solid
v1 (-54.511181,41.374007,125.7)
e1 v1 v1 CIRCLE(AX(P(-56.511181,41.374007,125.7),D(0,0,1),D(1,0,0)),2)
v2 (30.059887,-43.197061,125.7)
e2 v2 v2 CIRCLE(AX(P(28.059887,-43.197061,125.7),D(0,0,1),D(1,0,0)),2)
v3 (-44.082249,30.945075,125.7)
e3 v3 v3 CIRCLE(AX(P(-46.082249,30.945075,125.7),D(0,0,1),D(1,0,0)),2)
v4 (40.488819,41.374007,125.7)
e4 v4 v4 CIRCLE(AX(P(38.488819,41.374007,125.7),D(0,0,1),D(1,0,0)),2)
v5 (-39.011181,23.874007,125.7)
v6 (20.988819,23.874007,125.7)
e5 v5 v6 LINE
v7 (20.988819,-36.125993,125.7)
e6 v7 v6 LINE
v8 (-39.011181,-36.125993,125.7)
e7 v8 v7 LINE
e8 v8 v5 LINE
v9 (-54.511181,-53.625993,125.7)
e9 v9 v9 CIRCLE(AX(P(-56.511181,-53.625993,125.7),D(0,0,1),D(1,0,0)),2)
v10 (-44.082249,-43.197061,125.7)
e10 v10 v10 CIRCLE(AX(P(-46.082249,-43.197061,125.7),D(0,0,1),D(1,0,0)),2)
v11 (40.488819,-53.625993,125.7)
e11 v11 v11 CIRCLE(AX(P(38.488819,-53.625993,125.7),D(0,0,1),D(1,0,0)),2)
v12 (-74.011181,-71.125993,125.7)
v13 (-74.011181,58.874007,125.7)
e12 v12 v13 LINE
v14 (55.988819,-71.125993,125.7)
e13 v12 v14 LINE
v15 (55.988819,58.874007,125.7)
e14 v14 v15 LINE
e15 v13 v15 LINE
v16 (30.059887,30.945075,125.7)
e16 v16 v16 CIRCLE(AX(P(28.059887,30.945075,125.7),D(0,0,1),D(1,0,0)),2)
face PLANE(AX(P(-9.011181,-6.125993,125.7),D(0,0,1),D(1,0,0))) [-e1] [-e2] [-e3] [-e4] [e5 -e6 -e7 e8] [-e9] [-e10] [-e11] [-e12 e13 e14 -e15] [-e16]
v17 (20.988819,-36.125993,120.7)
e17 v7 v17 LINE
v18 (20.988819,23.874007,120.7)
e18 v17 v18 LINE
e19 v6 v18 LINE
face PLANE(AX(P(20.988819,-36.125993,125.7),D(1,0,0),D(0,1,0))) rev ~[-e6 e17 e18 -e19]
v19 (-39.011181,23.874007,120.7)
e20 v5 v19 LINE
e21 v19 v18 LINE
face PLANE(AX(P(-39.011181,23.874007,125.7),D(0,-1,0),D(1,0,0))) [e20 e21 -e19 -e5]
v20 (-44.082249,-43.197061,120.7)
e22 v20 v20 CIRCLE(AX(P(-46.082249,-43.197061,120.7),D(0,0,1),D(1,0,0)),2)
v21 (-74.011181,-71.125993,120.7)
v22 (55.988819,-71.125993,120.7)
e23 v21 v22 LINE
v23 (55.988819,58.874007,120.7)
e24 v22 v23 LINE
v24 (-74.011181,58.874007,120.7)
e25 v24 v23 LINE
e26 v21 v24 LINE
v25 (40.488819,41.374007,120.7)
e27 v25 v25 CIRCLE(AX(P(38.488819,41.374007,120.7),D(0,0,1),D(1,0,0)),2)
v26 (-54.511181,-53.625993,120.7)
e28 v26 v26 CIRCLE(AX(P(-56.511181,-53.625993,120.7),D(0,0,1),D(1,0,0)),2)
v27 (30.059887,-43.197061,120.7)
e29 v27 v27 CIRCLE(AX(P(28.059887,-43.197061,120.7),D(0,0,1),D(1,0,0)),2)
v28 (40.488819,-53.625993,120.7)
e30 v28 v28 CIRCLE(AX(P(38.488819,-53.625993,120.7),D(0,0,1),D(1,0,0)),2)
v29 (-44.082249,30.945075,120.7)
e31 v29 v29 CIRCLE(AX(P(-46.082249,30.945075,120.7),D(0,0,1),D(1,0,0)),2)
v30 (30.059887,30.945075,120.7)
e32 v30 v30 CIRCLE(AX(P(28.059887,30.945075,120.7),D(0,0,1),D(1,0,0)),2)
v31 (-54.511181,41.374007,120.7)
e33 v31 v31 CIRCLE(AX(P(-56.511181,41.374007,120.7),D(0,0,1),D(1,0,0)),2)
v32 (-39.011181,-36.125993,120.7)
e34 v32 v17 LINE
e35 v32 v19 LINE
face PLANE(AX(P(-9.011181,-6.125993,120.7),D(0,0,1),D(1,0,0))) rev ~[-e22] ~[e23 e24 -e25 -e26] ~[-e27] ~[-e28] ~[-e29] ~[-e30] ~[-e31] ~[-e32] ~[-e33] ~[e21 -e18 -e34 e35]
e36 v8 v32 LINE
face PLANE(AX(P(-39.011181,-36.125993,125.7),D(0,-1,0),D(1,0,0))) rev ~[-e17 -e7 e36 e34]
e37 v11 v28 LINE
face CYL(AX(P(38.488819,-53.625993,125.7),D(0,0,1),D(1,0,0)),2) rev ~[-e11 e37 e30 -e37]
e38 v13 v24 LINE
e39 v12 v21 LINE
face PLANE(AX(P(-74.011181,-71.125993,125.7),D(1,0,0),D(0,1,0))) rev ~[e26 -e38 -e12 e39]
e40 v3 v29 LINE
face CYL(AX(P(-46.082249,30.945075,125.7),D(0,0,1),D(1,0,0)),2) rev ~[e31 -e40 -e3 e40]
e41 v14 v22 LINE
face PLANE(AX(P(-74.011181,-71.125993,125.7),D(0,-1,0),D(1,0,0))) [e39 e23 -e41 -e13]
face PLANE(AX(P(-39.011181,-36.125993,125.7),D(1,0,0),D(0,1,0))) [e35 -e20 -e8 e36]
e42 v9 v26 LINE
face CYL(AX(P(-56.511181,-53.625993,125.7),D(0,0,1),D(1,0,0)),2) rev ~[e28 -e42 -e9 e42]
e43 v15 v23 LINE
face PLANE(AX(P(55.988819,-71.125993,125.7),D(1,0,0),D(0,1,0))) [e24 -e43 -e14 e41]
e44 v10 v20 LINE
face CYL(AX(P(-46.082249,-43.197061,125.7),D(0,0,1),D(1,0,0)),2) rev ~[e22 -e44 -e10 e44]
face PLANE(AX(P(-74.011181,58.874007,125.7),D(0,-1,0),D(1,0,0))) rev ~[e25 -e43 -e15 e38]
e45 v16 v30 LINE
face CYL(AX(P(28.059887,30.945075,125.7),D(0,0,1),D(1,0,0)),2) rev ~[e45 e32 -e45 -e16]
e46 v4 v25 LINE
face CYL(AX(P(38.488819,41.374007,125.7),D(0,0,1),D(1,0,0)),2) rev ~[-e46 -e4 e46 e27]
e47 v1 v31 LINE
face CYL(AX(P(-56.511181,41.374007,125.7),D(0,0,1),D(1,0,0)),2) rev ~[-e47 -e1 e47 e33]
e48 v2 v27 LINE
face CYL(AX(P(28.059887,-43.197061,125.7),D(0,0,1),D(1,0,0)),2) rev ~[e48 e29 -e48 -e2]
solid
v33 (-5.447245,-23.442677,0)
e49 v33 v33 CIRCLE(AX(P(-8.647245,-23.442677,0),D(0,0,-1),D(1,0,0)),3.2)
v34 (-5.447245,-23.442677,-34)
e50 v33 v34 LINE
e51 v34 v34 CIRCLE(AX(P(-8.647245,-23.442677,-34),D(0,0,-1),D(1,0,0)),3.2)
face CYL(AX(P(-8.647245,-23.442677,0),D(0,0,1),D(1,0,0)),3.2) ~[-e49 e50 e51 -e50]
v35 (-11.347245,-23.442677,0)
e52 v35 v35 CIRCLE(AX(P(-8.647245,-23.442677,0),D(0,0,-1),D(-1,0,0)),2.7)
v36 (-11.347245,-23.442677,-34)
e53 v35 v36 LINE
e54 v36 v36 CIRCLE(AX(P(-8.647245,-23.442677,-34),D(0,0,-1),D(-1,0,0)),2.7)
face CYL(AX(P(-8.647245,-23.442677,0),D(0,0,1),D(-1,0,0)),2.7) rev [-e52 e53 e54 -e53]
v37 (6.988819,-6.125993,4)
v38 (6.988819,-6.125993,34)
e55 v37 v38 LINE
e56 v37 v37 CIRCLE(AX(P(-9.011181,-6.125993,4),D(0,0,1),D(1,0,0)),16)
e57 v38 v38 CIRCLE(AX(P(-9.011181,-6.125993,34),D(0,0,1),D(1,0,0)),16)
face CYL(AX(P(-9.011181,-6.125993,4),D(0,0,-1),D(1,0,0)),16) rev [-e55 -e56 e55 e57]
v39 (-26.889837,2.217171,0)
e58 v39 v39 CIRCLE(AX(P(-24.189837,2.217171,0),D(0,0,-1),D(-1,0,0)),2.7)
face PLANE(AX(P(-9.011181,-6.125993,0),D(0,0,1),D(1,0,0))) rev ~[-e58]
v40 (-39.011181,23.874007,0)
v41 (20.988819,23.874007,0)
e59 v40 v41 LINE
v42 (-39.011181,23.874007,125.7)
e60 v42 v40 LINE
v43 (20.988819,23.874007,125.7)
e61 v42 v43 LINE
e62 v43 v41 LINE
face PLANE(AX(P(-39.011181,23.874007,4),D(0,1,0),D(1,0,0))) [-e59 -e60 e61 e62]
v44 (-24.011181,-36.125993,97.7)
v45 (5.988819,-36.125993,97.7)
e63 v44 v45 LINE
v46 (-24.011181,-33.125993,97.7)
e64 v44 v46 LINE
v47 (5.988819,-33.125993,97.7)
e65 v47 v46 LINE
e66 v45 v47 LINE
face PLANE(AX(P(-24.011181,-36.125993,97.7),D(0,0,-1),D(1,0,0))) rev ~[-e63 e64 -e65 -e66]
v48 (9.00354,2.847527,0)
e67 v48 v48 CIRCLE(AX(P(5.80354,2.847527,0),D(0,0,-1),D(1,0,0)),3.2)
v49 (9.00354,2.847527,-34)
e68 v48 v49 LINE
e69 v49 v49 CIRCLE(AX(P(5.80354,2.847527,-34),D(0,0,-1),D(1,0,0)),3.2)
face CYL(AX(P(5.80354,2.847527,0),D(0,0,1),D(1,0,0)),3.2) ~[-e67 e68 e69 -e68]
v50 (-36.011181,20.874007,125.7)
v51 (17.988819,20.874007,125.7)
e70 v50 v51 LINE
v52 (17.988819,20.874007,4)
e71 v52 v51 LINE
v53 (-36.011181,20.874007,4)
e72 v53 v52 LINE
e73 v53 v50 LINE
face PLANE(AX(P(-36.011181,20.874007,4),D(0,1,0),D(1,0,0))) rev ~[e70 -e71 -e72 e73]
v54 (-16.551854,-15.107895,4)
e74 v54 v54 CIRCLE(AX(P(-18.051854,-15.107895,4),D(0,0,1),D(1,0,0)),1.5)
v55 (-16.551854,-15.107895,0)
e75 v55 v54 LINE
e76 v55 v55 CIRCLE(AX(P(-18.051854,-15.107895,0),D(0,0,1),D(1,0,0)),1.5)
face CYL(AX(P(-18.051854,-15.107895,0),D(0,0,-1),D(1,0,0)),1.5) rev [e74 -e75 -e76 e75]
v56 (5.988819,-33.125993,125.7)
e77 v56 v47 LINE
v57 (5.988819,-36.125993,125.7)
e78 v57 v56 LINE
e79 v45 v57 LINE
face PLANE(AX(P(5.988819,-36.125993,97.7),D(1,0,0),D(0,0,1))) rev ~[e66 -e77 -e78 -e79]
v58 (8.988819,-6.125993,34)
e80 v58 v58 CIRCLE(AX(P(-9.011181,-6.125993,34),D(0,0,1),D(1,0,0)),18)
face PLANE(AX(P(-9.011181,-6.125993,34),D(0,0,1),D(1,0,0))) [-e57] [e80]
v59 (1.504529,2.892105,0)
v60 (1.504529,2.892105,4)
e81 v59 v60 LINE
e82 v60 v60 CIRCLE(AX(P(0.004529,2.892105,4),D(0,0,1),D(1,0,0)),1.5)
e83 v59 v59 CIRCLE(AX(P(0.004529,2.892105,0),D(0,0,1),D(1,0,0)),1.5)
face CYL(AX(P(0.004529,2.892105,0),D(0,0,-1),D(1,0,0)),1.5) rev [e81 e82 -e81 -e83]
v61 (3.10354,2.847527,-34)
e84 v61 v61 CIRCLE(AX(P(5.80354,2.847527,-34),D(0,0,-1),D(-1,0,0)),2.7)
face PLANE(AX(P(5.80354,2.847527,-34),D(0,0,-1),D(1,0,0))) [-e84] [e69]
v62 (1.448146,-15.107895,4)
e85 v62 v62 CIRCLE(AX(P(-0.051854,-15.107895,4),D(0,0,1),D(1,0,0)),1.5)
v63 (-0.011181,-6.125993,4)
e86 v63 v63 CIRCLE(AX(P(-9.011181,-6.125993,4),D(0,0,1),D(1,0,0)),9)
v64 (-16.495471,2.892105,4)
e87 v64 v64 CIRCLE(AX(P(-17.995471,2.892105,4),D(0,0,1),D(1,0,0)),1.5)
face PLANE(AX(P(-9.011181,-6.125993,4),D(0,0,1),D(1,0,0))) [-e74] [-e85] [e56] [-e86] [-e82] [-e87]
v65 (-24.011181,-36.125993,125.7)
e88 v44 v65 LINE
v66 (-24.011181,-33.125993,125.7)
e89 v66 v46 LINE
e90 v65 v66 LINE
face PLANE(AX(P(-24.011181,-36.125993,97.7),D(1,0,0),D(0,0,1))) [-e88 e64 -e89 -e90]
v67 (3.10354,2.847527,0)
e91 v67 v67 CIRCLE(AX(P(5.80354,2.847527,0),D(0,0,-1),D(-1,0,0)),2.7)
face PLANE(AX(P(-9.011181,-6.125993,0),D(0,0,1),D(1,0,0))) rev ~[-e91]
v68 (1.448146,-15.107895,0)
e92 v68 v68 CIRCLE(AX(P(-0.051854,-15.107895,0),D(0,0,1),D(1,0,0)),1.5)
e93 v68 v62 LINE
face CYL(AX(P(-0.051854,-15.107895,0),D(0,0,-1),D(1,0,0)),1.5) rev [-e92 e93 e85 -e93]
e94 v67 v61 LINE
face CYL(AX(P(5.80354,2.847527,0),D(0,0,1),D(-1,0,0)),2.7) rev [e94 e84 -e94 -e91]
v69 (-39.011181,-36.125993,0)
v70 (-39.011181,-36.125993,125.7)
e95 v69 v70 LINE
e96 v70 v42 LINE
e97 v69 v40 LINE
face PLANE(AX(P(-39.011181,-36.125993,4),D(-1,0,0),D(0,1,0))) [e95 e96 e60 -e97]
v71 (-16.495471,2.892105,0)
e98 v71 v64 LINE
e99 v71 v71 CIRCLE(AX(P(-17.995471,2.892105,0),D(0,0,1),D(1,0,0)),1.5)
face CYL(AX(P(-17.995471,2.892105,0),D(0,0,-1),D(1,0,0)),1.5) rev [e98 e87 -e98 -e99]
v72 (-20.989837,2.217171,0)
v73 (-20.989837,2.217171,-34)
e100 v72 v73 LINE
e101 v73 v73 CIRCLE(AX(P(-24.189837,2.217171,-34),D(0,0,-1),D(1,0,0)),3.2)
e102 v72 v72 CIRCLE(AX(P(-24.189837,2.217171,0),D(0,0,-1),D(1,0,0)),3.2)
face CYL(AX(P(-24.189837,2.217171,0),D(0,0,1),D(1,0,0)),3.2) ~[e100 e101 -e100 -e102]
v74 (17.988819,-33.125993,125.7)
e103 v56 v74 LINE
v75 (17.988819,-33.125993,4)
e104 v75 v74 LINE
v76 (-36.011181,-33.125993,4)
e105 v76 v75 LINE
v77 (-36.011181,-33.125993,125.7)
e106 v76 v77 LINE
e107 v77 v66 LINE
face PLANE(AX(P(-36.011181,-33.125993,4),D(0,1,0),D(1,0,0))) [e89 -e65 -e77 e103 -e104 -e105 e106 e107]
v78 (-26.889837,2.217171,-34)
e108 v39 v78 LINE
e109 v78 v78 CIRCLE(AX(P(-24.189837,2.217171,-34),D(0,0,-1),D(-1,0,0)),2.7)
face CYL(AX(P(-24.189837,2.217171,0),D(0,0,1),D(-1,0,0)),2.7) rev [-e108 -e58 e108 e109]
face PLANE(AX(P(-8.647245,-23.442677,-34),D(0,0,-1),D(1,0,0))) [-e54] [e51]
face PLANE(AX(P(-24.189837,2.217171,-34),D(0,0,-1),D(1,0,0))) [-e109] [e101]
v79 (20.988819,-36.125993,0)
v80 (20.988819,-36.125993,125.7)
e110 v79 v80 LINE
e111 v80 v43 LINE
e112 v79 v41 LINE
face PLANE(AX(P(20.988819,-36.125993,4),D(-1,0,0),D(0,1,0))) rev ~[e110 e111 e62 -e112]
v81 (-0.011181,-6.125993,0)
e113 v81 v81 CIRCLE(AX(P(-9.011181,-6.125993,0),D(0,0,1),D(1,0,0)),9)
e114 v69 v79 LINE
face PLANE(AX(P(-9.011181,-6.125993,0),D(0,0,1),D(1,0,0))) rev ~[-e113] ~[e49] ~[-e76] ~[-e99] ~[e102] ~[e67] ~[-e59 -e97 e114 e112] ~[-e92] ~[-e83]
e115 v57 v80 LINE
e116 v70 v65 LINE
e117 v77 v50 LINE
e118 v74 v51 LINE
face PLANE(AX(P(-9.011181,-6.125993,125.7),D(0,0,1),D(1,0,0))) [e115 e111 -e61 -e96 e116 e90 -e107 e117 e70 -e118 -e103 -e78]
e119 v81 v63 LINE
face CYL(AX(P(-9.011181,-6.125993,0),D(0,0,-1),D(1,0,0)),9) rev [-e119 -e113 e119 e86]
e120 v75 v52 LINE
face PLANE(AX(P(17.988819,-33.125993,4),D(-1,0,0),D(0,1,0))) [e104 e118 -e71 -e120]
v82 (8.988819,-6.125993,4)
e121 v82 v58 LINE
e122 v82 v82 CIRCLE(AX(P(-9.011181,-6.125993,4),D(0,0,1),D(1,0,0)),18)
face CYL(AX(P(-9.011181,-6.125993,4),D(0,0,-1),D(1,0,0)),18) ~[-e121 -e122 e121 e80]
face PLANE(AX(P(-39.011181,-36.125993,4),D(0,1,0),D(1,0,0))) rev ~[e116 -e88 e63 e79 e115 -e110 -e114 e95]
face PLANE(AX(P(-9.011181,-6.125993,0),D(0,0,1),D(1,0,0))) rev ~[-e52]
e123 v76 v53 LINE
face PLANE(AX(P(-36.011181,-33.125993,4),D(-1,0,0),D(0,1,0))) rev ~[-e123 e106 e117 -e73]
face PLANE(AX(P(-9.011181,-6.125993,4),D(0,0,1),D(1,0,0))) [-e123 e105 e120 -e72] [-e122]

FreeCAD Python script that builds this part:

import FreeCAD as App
import Part
import Sketcher

V = App.Vector


def add_polygon(sketch, points):
    """Adds a closed chain of lines whose ends are joined by coincident constraints."""
    first, n = sketch.GeometryCount, len(points)
    for a, b in zip(points, points[1:] + points[:1]):
        sketch.addGeometry(Part.LineSegment(App.Vector(*a, 0), App.Vector(*b, 0)), False)
    for i in range(n):
        sketch.addConstraint(Sketcher.Constraint("Coincident", first + i, 2, first + (i + 1) % n, 1))

doc = App.newDocument("Part")
body = doc.addObject("PartDesign::Body", "Body")

sketch1 = doc.addObject("Sketcher::SketchObject", "Sketch")
body.addObject(sketch1)
sketch1.AttachmentSupport = (doc.XY_Plane, [""])
sketch1.MapMode = "FlatFace"
add_polygon(sketch1, [(-39, 23.9), (-39, -36.1), (21, -36.1), (21, 23.9)])
sketch1.addGeometry(Part.Circle(V(-18.1, -15.1, 0), V(0, 0, 1), 1.5), False)
sketch1.addGeometry(Part.Circle(V(-0.1, -15.1, 0), V(0, 0, 1), 1.5), False)
sketch1.addGeometry(Part.Circle(V(-9, -6.1, 0), V(0, 0, 1), 9), False)
sketch1.addGeometry(Part.Circle(V(-18, 2.9, 0), V(0, 0, 1), 1.5), False)
sketch1.addGeometry(Part.Circle(V(0, 2.9, 0), V(0, 0, 1), 1.5), False)
sketch1.addConstraint([
    Sketcher.Constraint("Vertical", 0),
    Sketcher.Constraint("Horizontal", 1),
    Sketcher.Constraint("Vertical", 2),
    Sketcher.Constraint("Horizontal", 3),
    Sketcher.Constraint("Equal", 4, 5),
    Sketcher.Constraint("Equal", 5, 7),
    Sketcher.Constraint("Equal", 7, 8),
    Sketcher.Constraint("Horizontal", 4, 3, 5, 3),
    Sketcher.Constraint("Horizontal", 7, 3, 8, 3),
    Sketcher.Constraint("Equal", 3, 0),
    Sketcher.Constraint("Diameter", 4, 3.0),
    Sketcher.Constraint("Diameter", 6, 18.0),
    Sketcher.Constraint("DistanceX", 1, 1, 1, 2, 60.0),
    Sketcher.Constraint("DistanceX", 4, 3, 5, 3, 18.0),
    Sketcher.Constraint("DistanceY", 4, 3, 7, 3, 18.0),
    Sketcher.Constraint("DistanceX", 7, 3, 8, 3, 18.0),
    Sketcher.Constraint("DistanceX", 0, 2, 6, 3, 30.0),
    Sketcher.Constraint("DistanceY", 0, 2, 6, 3, 30.0),
    Sketcher.Constraint("DistanceY", 5, 3, 6, 3, 8.981902),
    Sketcher.Constraint("DistanceX", 6, 3, -1, 1, 9.011181),
    Sketcher.Constraint("DistanceX", 7, 3, -1, 1, 17.995471),
    Sketcher.Constraint("DistanceX", 4, 3, -1, 1, 18.051854),
    Sketcher.Constraint("DistanceY", 4, 3, -1, 1, 15.107895),
])
pad1 = doc.addObject("PartDesign::Pad", "Pad")
body.addObject(pad1)
pad1.Profile = sketch1
pad1.Length = 4

sketch2 = doc.addObject("Sketcher::SketchObject", "Sketch001")
body.addObject(sketch2)
sketch2.AttachmentSupport = (doc.XY_Plane, [""])
sketch2.MapMode = "FlatFace"
sketch2.AttachmentOffset = App.Placement(V(0, 0, 4), App.Rotation())
sketch2.addGeometry([
    Part.Circle(V(-9, -6, 0), V(0, 0, 1), 18),
    Part.Circle(V(-9, -6, 0), V(0, 0, 1), 16),
], False)
sketch2.addConstraint([
    Sketcher.Constraint("Coincident", 1, 3, 0, 3),
    Sketcher.Constraint("Diameter", 0, 36.0),
    Sketcher.Constraint("Diameter", 1, 32.0),
    Sketcher.Constraint("DistanceX", 0, 3, -1, 1, 9.011181),
    Sketcher.Constraint("DistanceY", 0, 3, -1, 1, 6.125993),
])
pad2 = doc.addObject("PartDesign::Pad", "Pad001")
body.addObject(pad2)
pad2.Profile = sketch2
pad2.Length = 30

sketch3 = doc.addObject("Sketcher::SketchObject", "Sketch002")
body.addObject(sketch3)
sketch3.AttachmentSupport = (doc.XY_Plane, [""])
sketch3.MapMode = "FlatFace"
sketch3.addGeometry([
    Part.Circle(V(5.8, 2.8, 0), V(0, 0, 1), 3.2),
    Part.Circle(V(5.8, 2.8, 0), V(0, 0, 1), 2.7),
    Part.Circle(V(-24.2, 2.2, 0), V(0, 0, 1), 3.2),
    Part.Circle(V(-24.2, 2.2, 0), V(0, 0, 1), 2.7),
    Part.Circle(V(-8.6, -23.4, 0), V(0, 0, 1), 3.2),
    Part.Circle(V(-8.6, -23.4, 0), V(0, 0, 1), 2.7),
], False)
sketch3.addConstraint([
    Sketcher.Constraint("Coincident", 1, 3, 0, 3),
    Sketcher.Constraint("Coincident", 3, 3, 2, 3),
    Sketcher.Constraint("Coincident", 5, 3, 4, 3),
    Sketcher.Constraint("Equal", 0, 2),
    Sketcher.Constraint("Equal", 1, 3),
    Sketcher.Constraint("Equal", 2, 4),
    Sketcher.Constraint("Equal", 3, 5),
    Sketcher.Constraint("Diameter", 0, 6.4),
    Sketcher.Constraint("Diameter", 1, 5.4),
    Sketcher.Constraint("DistanceX", -1, 1, 0, 3, 5.80354),
    Sketcher.Constraint("DistanceY", -1, 1, 2, 3, 2.217171),
    Sketcher.Constraint("DistanceY", 4, 3, 2, 3, 25.659848),
    Sketcher.Constraint("DistanceY", -1, 1, 0, 3, 2.847527),
    Sketcher.Constraint("DistanceX", 2, 3, -1, 1, 24.189837),
    Sketcher.Constraint("DistanceX", 4, 3, -1, 1, 8.647245),
])
pad3 = doc.addObject("PartDesign::Pad", "Pad002")
body.addObject(pad3)
pad3.Profile = sketch3
pad3.Length = 34
pad3.Reversed = True

sketch4 = doc.addObject("Sketcher::SketchObject", "Sketch003")
body.addObject(sketch4)
sketch4.AttachmentSupport = (doc.XY_Plane, [""])
sketch4.MapMode = "FlatFace"
sketch4.AttachmentOffset = App.Placement(V(0, 0, 4), App.Rotation())
add_polygon(sketch4, [(-39, 24), (-39, -36), (21, -36), (21, 24)])
add_polygon(sketch4, [(18, -33), (-36, -33), (-36, 21), (18, 21)])
sketch4.addConstraint([
    Sketcher.Constraint("Vertical", 0),
    Sketcher.Constraint("Horizontal", 1),
    Sketcher.Constraint("Vertical", 2),
    Sketcher.Constraint("Horizontal", 3),
    Sketcher.Constraint("Horizontal", 4),
    Sketcher.Constraint("Vertical", 5),
    Sketcher.Constraint("Horizontal", 6),
    Sketcher.Constraint("Vertical", 7),
    Sketcher.Constraint("Equal", 3, 0),
    Sketcher.Constraint("Equal", 6, 5),
    Sketcher.Constraint("DistanceX", 1, 1, 1, 2, 60.0),
    Sketcher.Constraint("DistanceX", 4, 2, 4, 1, 54.0),
    Sketcher.Constraint("DistanceX", 0, 2, 4, 2, 3.0),
    Sketcher.Constraint("DistanceY", 0, 2, 4, 2, 3.0),
    Sketcher.Constraint("DistanceX", 0, 2, -1, 1, 39.011181),
    Sketcher.Constraint("DistanceY", 0, 2, -1, 1, 36.125993),
])
pad4 = doc.addObject("PartDesign::Pad", "Pad003")
body.addObject(pad4)
pad4.Profile = sketch4
pad4.Length = 121.7

sketch5 = doc.addObject("Sketcher::SketchObject", "Sketch004")
body.addObject(sketch5)
sketch5.AttachmentSupport = (doc.XZ_Plane, [""])
sketch5.MapMode = "FlatFace"
sketch5.AttachmentOffset = App.Placement(V(0, 0, 36.125993), App.Rotation())
add_polygon(sketch5, [(-24, 126), (-24, 98), (6, 98), (6, 126)])
sketch5.addConstraint([
    Sketcher.Constraint("Vertical", 0),
    Sketcher.Constraint("Horizontal", 1),
    Sketcher.Constraint("Vertical", 2),
    Sketcher.Constraint("Horizontal", 3),
    Sketcher.Constraint("DistanceX", 1, 1, 1, 2, 30.0),
    Sketcher.Constraint("DistanceY", 0, 2, 0, 1, 28.0),
    Sketcher.Constraint("DistanceY", -1, 1, 0, 2, 97.7),
    Sketcher.Constraint("DistanceX", 0, 2, -1, 1, 24.011181),
])
pocket1 = doc.addObject("PartDesign::Pocket", "Pocket")
body.addObject(pocket1)
pocket1.Profile = sketch5
pocket1.Length = 30.7
body2 = doc.addObject("PartDesign::Body", "Body001")

sketch6 = doc.addObject("Sketcher::SketchObject", "Sketch005")
body2.addObject(sketch6)
sketch6.AttachmentSupport = (doc.getObject("XY_Plane001"), [""])
sketch6.MapMode = "FlatFace"
sketch6.AttachmentOffset = App.Placement(V(0, 0, 125.7), App.Rotation())
add_polygon(sketch6, [(-74, 58.9), (-74, -71.1), (56, -71.1), (56, 58.9)])
sketch6.addGeometry(Part.Circle(V(-56.5, -53.6, 0), V(0, 0, 1), 2), False)
sketch6.addGeometry(Part.Circle(V(-46.1, -43.2, 0), V(0, 0, 1), 2), False)
sketch6.addGeometry(Part.Circle(V(38.5, -53.6, 0), V(0, 0, 1), 2), False)
sketch6.addGeometry(Part.Circle(V(28.1, -43.2, 0), V(0, 0, 1), 2), False)
sketch6.addGeometry(Part.Circle(V(-46.1, 30.9, 0), V(0, 0, 1), 2), False)
sketch6.addGeometry(Part.Circle(V(-56.5, 41.4, 0), V(0, 0, 1), 2), False)
add_polygon(sketch6, [(21, -36.1), (-39, -36.1), (-39, 23.9), (21, 23.9)])
sketch6.addGeometry(Part.Circle(V(28.1, 30.9, 0), V(0, 0, 1), 2), False)
sketch6.addGeometry(Part.Circle(V(38.5, 41.4, 0), V(0, 0, 1), 2), False)
sketch6.addConstraint([
    Sketcher.Constraint("Vertical", 0),
    Sketcher.Constraint("Horizontal", 1),
    Sketcher.Constraint("Vertical", 2),
    Sketcher.Constraint("Horizontal", 3),
    Sketcher.Constraint("Horizontal", 10),
    Sketcher.Constraint("Vertical", 11),
    Sketcher.Constraint("Horizontal", 12),
    Sketcher.Constraint("Vertical", 13),
    Sketcher.Constraint("Equal", 4, 5),
    Sketcher.Constraint("Equal", 5, 6),
    Sketcher.Constraint("Equal", 6, 7),
    Sketcher.Constraint("Equal", 7, 8),
    Sketcher.Constraint("Equal", 8, 9),
    Sketcher.Constraint("Equal", 9, 14),
    Sketcher.Constraint("Equal", 14, 15),
    Sketcher.Constraint("Horizontal", 4, 3, 6, 3),
    Sketcher.Constraint("Horizontal", 5, 3, 7, 3),
    Sketcher.Constraint("Horizontal", 8, 3, 14, 3),
    Sketcher.Constraint("Horizontal", 9, 3, 15, 3),
    Sketcher.Constraint("Vertical", 5, 3, 8, 3),
    Sketcher.Constraint("Vertical", 4, 3, 9, 3),
    Sketcher.Constraint("Vertical", 7, 3, 14, 3),
    Sketcher.Constraint("Vertical", 6, 3, 15, 3),
    Sketcher.Constraint("Equal", 3, 0),
    Sketcher.Constraint("Equal", 12, 11),
    Sketcher.Constraint("Diameter", 4, 4.0),
    Sketcher.Constraint("DistanceX", 1, 1, 1, 2, 130.0),
    Sketcher.Constraint("DistanceX", 10, 2, 10, 1, 60.0),
    Sketcher.Constraint("DistanceX", 4, 3, 6, 3, 95.0),
    Sketcher.Constraint("DistanceY", 4, 3, 9, 3, 95.0),
    Sketcher.Constraint("DistanceX", 0, 2, 10, 2, 35.0),
    Sketcher.Constraint("DistanceY", 0, 2, 10, 2, 35.0),
    Sketcher.Constraint("DistanceX", 0, 2, 4, 3, 17.5),
    Sketcher.Constraint("DistanceY", 0, 2, 4, 3, 17.5),
    Sketcher.Constraint("DistanceX", 4, 3, -1, 1, 56.511181),
    Sketcher.Constraint("DistanceX", 5, 3, -1, 1, 46.082249),
    Sketcher.Constraint("DistanceY", 5, 3, -1, 1, 43.197061),
    Sketcher.Constraint("DistanceY", 4, 3, -1, 1, 53.625993),
    Sketcher.Constraint("DistanceX", -1, 1, 7, 3, 28.059887),
    Sketcher.Constraint("DistanceY", -1, 1, 8, 3, 30.945075),
])
pad5 = doc.addObject("PartDesign::Pad", "Pad004")
body2.addObject(pad5)
pad5.Profile = sketch6
pad5.Length = 5
pad5.Reversed = True

doc.recompute()
